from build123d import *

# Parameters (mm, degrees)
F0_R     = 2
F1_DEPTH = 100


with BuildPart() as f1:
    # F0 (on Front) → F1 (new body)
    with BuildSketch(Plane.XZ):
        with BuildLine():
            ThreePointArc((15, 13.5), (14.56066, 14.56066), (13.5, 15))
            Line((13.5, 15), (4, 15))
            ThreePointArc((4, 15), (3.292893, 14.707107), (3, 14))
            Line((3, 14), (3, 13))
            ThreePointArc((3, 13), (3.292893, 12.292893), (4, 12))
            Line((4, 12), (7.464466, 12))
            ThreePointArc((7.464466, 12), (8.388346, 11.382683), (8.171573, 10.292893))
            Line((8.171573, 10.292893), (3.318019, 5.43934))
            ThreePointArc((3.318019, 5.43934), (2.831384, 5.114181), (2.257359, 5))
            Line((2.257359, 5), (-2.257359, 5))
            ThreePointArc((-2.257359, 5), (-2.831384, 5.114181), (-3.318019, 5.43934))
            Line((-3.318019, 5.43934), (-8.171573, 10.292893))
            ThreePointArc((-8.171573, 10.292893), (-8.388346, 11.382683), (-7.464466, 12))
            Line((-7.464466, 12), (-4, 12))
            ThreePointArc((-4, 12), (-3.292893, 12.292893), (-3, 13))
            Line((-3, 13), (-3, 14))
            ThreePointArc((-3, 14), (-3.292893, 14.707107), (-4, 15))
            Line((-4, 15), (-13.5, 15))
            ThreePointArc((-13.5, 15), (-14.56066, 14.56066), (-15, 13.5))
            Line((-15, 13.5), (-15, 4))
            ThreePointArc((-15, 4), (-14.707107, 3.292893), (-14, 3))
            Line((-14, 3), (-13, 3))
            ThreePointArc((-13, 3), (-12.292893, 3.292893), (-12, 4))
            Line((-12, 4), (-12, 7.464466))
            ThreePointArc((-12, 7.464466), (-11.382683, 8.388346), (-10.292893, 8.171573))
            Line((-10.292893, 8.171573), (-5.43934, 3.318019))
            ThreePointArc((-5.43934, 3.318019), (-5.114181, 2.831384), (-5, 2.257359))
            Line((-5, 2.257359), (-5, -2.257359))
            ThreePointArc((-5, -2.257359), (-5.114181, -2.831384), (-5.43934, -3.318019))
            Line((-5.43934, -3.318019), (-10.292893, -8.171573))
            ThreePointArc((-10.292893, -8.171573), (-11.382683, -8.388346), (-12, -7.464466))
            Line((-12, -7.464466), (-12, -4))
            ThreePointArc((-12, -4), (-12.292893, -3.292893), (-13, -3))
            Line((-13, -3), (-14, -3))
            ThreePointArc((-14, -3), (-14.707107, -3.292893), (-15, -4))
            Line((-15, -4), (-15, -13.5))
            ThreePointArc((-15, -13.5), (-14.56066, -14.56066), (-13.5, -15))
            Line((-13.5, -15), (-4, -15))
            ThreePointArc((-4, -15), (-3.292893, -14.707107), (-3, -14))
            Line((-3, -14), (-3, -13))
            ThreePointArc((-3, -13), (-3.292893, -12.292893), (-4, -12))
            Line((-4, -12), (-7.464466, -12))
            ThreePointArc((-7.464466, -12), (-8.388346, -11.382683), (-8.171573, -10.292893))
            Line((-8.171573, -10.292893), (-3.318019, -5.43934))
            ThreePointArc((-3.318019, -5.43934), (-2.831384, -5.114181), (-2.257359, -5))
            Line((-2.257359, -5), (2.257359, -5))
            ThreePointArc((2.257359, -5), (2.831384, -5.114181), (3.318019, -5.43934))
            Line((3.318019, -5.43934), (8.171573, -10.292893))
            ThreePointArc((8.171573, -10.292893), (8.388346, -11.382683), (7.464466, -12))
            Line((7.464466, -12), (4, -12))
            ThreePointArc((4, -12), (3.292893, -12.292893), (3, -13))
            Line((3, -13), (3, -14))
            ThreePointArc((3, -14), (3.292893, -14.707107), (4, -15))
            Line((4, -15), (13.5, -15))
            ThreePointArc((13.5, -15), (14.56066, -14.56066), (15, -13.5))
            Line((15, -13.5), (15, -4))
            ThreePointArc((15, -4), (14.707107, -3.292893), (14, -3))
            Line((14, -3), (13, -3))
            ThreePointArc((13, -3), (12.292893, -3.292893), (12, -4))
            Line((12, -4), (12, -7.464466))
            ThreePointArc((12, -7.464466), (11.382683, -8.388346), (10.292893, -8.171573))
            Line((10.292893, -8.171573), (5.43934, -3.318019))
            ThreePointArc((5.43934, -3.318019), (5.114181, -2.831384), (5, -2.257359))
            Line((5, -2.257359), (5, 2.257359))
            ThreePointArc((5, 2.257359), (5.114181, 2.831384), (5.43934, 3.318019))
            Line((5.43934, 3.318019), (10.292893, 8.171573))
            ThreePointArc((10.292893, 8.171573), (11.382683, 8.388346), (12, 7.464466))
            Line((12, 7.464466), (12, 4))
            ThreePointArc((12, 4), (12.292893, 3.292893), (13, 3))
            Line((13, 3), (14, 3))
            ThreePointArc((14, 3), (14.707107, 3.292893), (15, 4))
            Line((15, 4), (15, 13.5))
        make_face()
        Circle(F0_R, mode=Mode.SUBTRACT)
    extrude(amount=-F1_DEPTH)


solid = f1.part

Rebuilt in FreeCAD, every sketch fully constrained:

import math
import FreeCAD as App
import Part
import Sketcher
from FreeCAD import Vector

doc = App.newDocument("Part")
body = doc.addObject("PartDesign::Body", "Body")

sketch1 = body.newObject("Sketcher::SketchObject", "Sketch")
sketch1.AttachmentSupport = (doc.getObject("XZ_Plane"), [""])
sketch1.MapMode = "FlatFace"
sketch1.addGeometry(Part.ArcOfCircle(Part.Circle(Vector(13.5, 13.5, 0), Vector(0, 0, 1), 1.5), math.radians(0), math.radians(90)), False)
sketch1.addGeometry(Part.LineSegment(Vector(13.5, 15, 0), Vector(4, 15, 0)), False)
sketch1.addGeometry(Part.ArcOfCircle(Part.Circle(Vector(4, 14, 0), Vector(0, 0, 1), 1), math.radians(90), math.radians(180)), False)
sketch1.addGeometry(Part.LineSegment(Vector(3, 14, 0), Vector(3, 13, 0)), False)
sketch1.addGeometry(Part.ArcOfCircle(Part.Circle(Vector(4, 13, 0), Vector(0, 0, 1), 1), math.radians(180), math.radians(270)), False)
sketch1.addGeometry(Part.LineSegment(Vector(4, 12, 0), Vector(7.5, 12, 0)), False)
sketch1.addGeometry(Part.ArcOfCircle(Part.Circle(Vector(7.5, 11, 0), Vector(0, 0, 1), 1), math.radians(-45), math.radians(90)), False)
sketch1.addGeometry(Part.LineSegment(Vector(8.2, 10.3, 0), Vector(3.3, 5.4, 0)), False)
sketch1.addGeometry(Part.ArcOfCircle(Part.Circle(Vector(2.3, 6.5, 0), Vector(0, 0, 1), 1.5), math.radians(-90), math.radians(-45)), False)
sketch1.addGeometry(Part.LineSegment(Vector(2.3, 5, 0), Vector(-2.3, 5, 0)), False)
sketch1.addGeometry(Part.ArcOfCircle(Part.Circle(Vector(-2.3, 6.5, 0), Vector(0, 0, 1), 1.5), math.radians(-135), math.radians(-90)), False)
sketch1.addGeometry(Part.LineSegment(Vector(-3.3, 5.4, 0), Vector(-8.2, 10.3, 0)), False)
sketch1.addGeometry(Part.ArcOfCircle(Part.Circle(Vector(-7.5, 11, 0), Vector(0, 0, 1), 1), math.radians(90), math.radians(225)), False)
sketch1.addGeometry(Part.LineSegment(Vector(-7.5, 12, 0), Vector(-4, 12, 0)), False)
sketch1.addGeometry(Part.ArcOfCircle(Part.Circle(Vector(-4, 13, 0), Vector(0, 0, 1), 1), math.radians(-90), math.radians(0)), False)
sketch1.addGeometry(Part.LineSegment(Vector(-3, 13, 0), Vector(-3, 14, 0)), False)
sketch1.addGeometry(Part.ArcOfCircle(Part.Circle(Vector(-4, 14, 0), Vector(0, 0, 1), 1), math.radians(0), math.radians(90)), False)
sketch1.addGeometry(Part.LineSegment(Vector(-4, 15, 0), Vector(-13.5, 15, 0)), False)
sketch1.addGeometry(Part.ArcOfCircle(Part.Circle(Vector(-13.5, 13.5, 0), Vector(0, 0, 1), 1.5), math.radians(90), math.radians(180)), False)
sketch1.addGeometry(Part.LineSegment(Vector(-15, 13.5, 0), Vector(-15, 4, 0)), False)
sketch1.addGeometry(Part.ArcOfCircle(Part.Circle(Vector(-14, 4, 0), Vector(0, 0, 1), 1), math.radians(180), math.radians(270)), False)
sketch1.addGeometry(Part.LineSegment(Vector(-14, 3, 0), Vector(-13, 3, 0)), False)
sketch1.addGeometry(Part.ArcOfCircle(Part.Circle(Vector(-13, 4, 0), Vector(0, 0, 1), 1), math.radians(-90), math.radians(0)), False)
sketch1.addGeometry(Part.LineSegment(Vector(-12, 4, 0), Vector(-12, 7.5, 0)), False)
sketch1.addGeometry(Part.ArcOfCircle(Part.Circle(Vector(-11, 7.5, 0), Vector(0, 0, 1), 1), math.radians(45), math.radians(180)), False)
sketch1.addGeometry(Part.LineSegment(Vector(-10.3, 8.2, 0), Vector(-5.4, 3.3, 0)), False)
sketch1.addGeometry(Part.ArcOfCircle(Part.Circle(Vector(-6.5, 2.3, 0), Vector(0, 0, 1), 1.5), math.radians(0), math.radians(45)), False)
sketch1.addGeometry(Part.LineSegment(Vector(-5, 2.3, 0), Vector(-5, -2.3, 0)), False)
sketch1.addGeometry(Part.ArcOfCircle(Part.Circle(Vector(-6.5, -2.3, 0), Vector(0, 0, 1), 1.5), math.radians(-45), math.radians(0)), False)
sketch1.addGeometry(Part.LineSegment(Vector(-5.4, -3.3, 0), Vector(-10.3, -8.2, 0)), False)
sketch1.addGeometry(Part.ArcOfCircle(Part.Circle(Vector(-11, -7.5, 0), Vector(0, 0, 1), 1), math.radians(180), math.radians(315)), False)
sketch1.addGeometry(Part.LineSegment(Vector(-12, -7.5, 0), Vector(-12, -4, 0)), False)
sketch1.addGeometry(Part.ArcOfCircle(Part.Circle(Vector(-13, -4, 0), Vector(0, 0, 1), 1), math.radians(0), math.radians(90)), False)
sketch1.addGeometry(Part.LineSegment(Vector(-13, -3, 0), Vector(-14, -3, 0)), False)
sketch1.addGeometry(Part.ArcOfCircle(Part.Circle(Vector(-14, -4, 0), Vector(0, 0, 1), 1), math.radians(90), math.radians(180)), False)
sketch1.addGeometry(Part.LineSegment(Vector(-15, -4, 0), Vector(-15, -13.5, 0)), False)
sketch1.addGeometry(Part.ArcOfCircle(Part.Circle(Vector(-13.5, -13.5, 0), Vector(0, 0, 1), 1.5), math.radians(-180), math.radians(-90)), False)
sketch1.addGeometry(Part.LineSegment(Vector(-13.5, -15, 0), Vector(-4, -15, 0)), False)
sketch1.addGeometry(Part.ArcOfCircle(Part.Circle(Vector(-4, -14, 0), Vector(0, 0, 1), 1), math.radians(-90), math.radians(0)), False)
sketch1.addGeometry(Part.LineSegment(Vector(-3, -14, 0), Vector(-3, -13, 0)), False)
sketch1.addGeometry(Part.ArcOfCircle(Part.Circle(Vector(-4, -13, 0), Vector(0, 0, 1), 1), math.radians(0), math.radians(90)), False)
sketch1.addGeometry(Part.LineSegment(Vector(-4, -12, 0), Vector(-7.5, -12, 0)), False)
sketch1.addGeometry(Part.ArcOfCircle(Part.Circle(Vector(-7.5, -11, 0), Vector(0, 0, 1), 1), math.radians(135), math.radians(270)), False)
sketch1.addGeometry(Part.LineSegment(Vector(-8.2, -10.3, 0), Vector(-3.3, -5.4, 0)), False)
sketch1.addGeometry(Part.ArcOfCircle(Part.Circle(Vector(-2.3, -6.5, 0), Vector(0, 0, 1), 1.5), math.radians(90), math.radians(135)), False)
sketch1.addGeometry(Part.LineSegment(Vector(-2.3, -5, 0), Vector(2.3, -5, 0)), False)
sketch1.addGeometry(Part.ArcOfCircle(Part.Circle(Vector(2.3, -6.5, 0), Vector(0, 0, 1), 1.5), math.radians(45), math.radians(90)), False)
sketch1.addGeometry(Part.LineSegment(Vector(3.3, -5.4, 0), Vector(8.2, -10.3, 0)), False)
sketch1.addGeometry(Part.ArcOfCircle(Part.Circle(Vector(7.5, -11, 0), Vector(0, 0, 1), 1), math.radians(-90), math.radians(45)), False)
sketch1.addGeometry(Part.LineSegment(Vector(7.5, -12, 0), Vector(4, -12, 0)), False)
sketch1.addGeometry(Part.ArcOfCircle(Part.Circle(Vector(4, -13, 0), Vector(0, 0, 1), 1), math.radians(90), math.radians(180)), False)
sketch1.addGeometry(Part.LineSegment(Vector(3, -13, 0), Vector(3, -14, 0)), False)
sketch1.addGeometry(Part.ArcOfCircle(Part.Circle(Vector(4, -14, 0), Vector(0, 0, 1), 1), math.radians(180), math.radians(270)), False)
sketch1.addGeometry(Part.LineSegment(Vector(4, -15, 0), Vector(13.5, -15, 0)), False)
sketch1.addGeometry(Part.ArcOfCircle(Part.Circle(Vector(13.5, -13.5, 0), Vector(0, 0, 1), 1.5), math.radians(-90), math.radians(0)), False)
sketch1.addGeometry(Part.LineSegment(Vector(15, -13.5, 0), Vector(15, -4, 0)), False)
sketch1.addGeometry(Part.ArcOfCircle(Part.Circle(Vector(14, -4, 0), Vector(0, 0, 1), 1), math.radians(0), math.radians(90)), False)
sketch1.addGeometry(Part.LineSegment(Vector(14, -3, 0), Vector(13, -3, 0)), False)
sketch1.addGeometry(Part.ArcOfCircle(Part.Circle(Vector(13, -4, 0), Vector(0, 0, 1), 1), math.radians(90), math.radians(180)), False)
sketch1.addGeometry(Part.LineSegment(Vector(12, -4, 0), Vector(12, -7.5, 0)), False)
sketch1.addGeometry(Part.ArcOfCircle(Part.Circle(Vector(11, -7.5, 0), Vector(0, 0, 1), 1), math.radians(-135), math.radians(0)), False)
sketch1.addGeometry(Part.LineSegment(Vector(10.3, -8.2, 0), Vector(5.4, -3.3, 0)), False)
sketch1.addGeometry(Part.ArcOfCircle(Part.Circle(Vector(6.5, -2.3, 0), Vector(0, 0, 1), 1.5), math.radians(-180), math.radians(-135)), False)
sketch1.addGeometry(Part.LineSegment(Vector(5, -2.3, 0), Vector(5, 2.3, 0)), False)
sketch1.addGeometry(Part.ArcOfCircle(Part.Circle(Vector(6.5, 2.3, 0), Vector(0, 0, 1), 1.5), math.radians(135), math.radians(180)), False)
sketch1.addGeometry(Part.LineSegment(Vector(5.4, 3.3, 0), Vector(10.3, 8.2, 0)), False)
sketch1.addGeometry(Part.ArcOfCircle(Part.Circle(Vector(11, 7.5, 0), Vector(0, 0, 1), 1), math.radians(0), math.radians(135)), False)
sketch1.addGeometry(Part.LineSegment(Vector(12, 7.5, 0), Vector(12, 4, 0)), False)
sketch1.addGeometry(Part.ArcOfCircle(Part.Circle(Vector(13, 4, 0), Vector(0, 0, 1), 1), math.radians(180), math.radians(270)), False)
sketch1.addGeometry(Part.LineSegment(Vector(13, 3, 0), Vector(14, 3, 0)), False)
sketch1.addGeometry(Part.ArcOfCircle(Part.Circle(Vector(14, 4, 0), Vector(0, 0, 1), 1), math.radians(-90), math.radians(0)), False)
sketch1.addGeometry(Part.LineSegment(Vector(15, 4, 0), Vector(15, 13.5, 0)), False)
sketch1.addGeometry(Part.Circle(Vector(0, 0, 0), Vector(0, 0, 1), 2), False)
sketch1.addConstraint(Sketcher.Constraint("Tangent", 0, 2, 1, 1))
sketch1.addConstraint(Sketcher.Constraint("Tangent", 1, 2, 2, 1))
sketch1.addConstraint(Sketcher.Constraint("Tangent", 2, 2, 3, 1))
sketch1.addConstraint(Sketcher.Constraint("Tangent", 3, 2, 4, 1))
sketch1.addConstraint(Sketcher.Constraint("Tangent", 4, 2, 5, 1))
sketch1.addConstraint(Sketcher.Constraint("Tangent", 5, 2, 6, 2))
sketch1.addConstraint(Sketcher.Constraint("Tangent", 6, 1, 7, 1))
sketch1.addConstraint(Sketcher.Constraint("Tangent", 7, 2, 8, 2))
sketch1.addConstraint(Sketcher.Constraint("Tangent", 8, 1, 9, 1))
sketch1.addConstraint(Sketcher.Constraint("Tangent", 9, 2, 10, 2))
sketch1.addConstraint(Sketcher.Constraint("Tangent", 10, 1, 11, 1))
sketch1.addConstraint(Sketcher.Constraint("Tangent", 11, 2, 12, 2))
sketch1.addConstraint(Sketcher.Constraint("Tangent", 12, 1, 13, 1))
sketch1.addConstraint(Sketcher.Constraint("Tangent", 13, 2, 14, 1))
sketch1.addConstraint(Sketcher.Constraint("Tangent", 14, 2, 15, 1))
sketch1.addConstraint(Sketcher.Constraint("Tangent", 15, 2, 16, 1))
sketch1.addConstraint(Sketcher.Constraint("Tangent", 16, 2, 17, 1))
sketch1.addConstraint(Sketcher.Constraint("Tangent", 17, 2, 18, 1))
sketch1.addConstraint(Sketcher.Constraint("Tangent", 18, 2, 19, 1))
sketch1.addConstraint(Sketcher.Constraint("Tangent", 19, 2, 20, 1))
sketch1.addConstraint(Sketcher.Constraint("Tangent", 20, 2, 21, 1))
sketch1.addConstraint(Sketcher.Constraint("Tangent", 21, 2, 22, 1))
sketch1.addConstraint(Sketcher.Constraint("Tangent", 22, 2, 23, 1))
sketch1.addConstraint(Sketcher.Constraint("Tangent", 23, 2, 24, 2))
sketch1.addConstraint(Sketcher.Constraint("Tangent", 24, 1, 25, 1))
sketch1.addConstraint(Sketcher.Constraint("Tangent", 25, 2, 26, 2))
sketch1.addConstraint(Sketcher.Constraint("Tangent", 26, 1, 27, 1))
sketch1.addConstraint(Sketcher.Constraint("Tangent", 27, 2, 28, 2))
sketch1.addConstraint(Sketcher.Constraint("Tangent", 28, 1, 29, 1))
sketch1.addConstraint(Sketcher.Constraint("Tangent", 29, 2, 30, 2))
sketch1.addConstraint(Sketcher.Constraint("Tangent", 30, 1, 31, 1))
sketch1.addConstraint(Sketcher.Constraint("Tangent", 31, 2, 32, 1))
sketch1.addConstraint(Sketcher.Constraint("Tangent", 32, 2, 33, 1))
sketch1.addConstraint(Sketcher.Constraint("Tangent", 33, 2, 34, 1))
sketch1.addConstraint(Sketcher.Constraint("Tangent", 34, 2, 35, 1))
sketch1.addConstraint(Sketcher.Constraint("Tangent", 35, 2, 36, 1))
sketch1.addConstraint(Sketcher.Constraint("Tangent", 36, 2, 37, 1))
sketch1.addConstraint(Sketcher.Constraint("Tangent", 37, 2, 38, 1))
sketch1.addConstraint(Sketcher.Constraint("Tangent", 38, 2, 39, 1))
sketch1.addConstraint(Sketcher.Constraint("Tangent", 39, 2, 40, 1))
sketch1.addConstraint(Sketcher.Constraint("Tangent", 40, 2, 41, 1))
sketch1.addConstraint(Sketcher.Constraint("Tangent", 41, 2, 42, 2))
sketch1.addConstraint(Sketcher.Constraint("Tangent", 42, 1, 43, 1))
sketch1.addConstraint(Sketcher.Constraint("Tangent", 43, 2, 44, 2))
sketch1.addConstraint(Sketcher.Constraint("Tangent", 44, 1, 45, 1))
sketch1.addConstraint(Sketcher.Constraint("Tangent", 45, 2, 46, 2))
sketch1.addConstraint(Sketcher.Constraint("Tangent", 46, 1, 47, 1))
sketch1.addConstraint(Sketcher.Constraint("Tangent", 47, 2, 48, 2))
sketch1.addConstraint(Sketcher.Constraint("Tangent", 48, 1, 49, 1))
sketch1.addConstraint(Sketcher.Constraint("Tangent", 49, 2, 50, 1))
sketch1.addConstraint(Sketcher.Constraint("Tangent", 50, 2, 51, 1))
sketch1.addConstraint(Sketcher.Constraint("Tangent", 51, 2, 52, 1))
sketch1.addConstraint(Sketcher.Constraint("Tangent", 52, 2, 53, 1))
sketch1.addConstraint(Sketcher.Constraint("Tangent", 53, 2, 54, 1))
sketch1.addConstraint(Sketcher.Constraint("Tangent", 54, 2, 55, 1))
sketch1.addConstraint(Sketcher.Constraint("Tangent", 55, 2, 56, 1))
sketch1.addConstraint(Sketcher.Constraint("Tangent", 56, 2, 57, 1))
sketch1.addConstraint(Sketcher.Constraint("Tangent", 57, 2, 58, 1))
sketch1.addConstraint(Sketcher.Constraint("Tangent", 58, 2, 59, 1))
sketch1.addConstraint(Sketcher.Constraint("Tangent", 59, 2, 60, 2))
sketch1.addConstraint(Sketcher.Constraint("Tangent", 60, 1, 61, 1))
sketch1.addConstraint(Sketcher.Constraint("Tangent", 61, 2, 62, 2))
sketch1.addConstraint(Sketcher.Constraint("Tangent", 62, 1, 63, 1))
sketch1.addConstraint(Sketcher.Constraint("Tangent", 63, 2, 64, 2))
sketch1.addConstraint(Sketcher.Constraint("Tangent", 64, 1, 65, 1))
sketch1.addConstraint(Sketcher.Constraint("Tangent", 65, 2, 66, 2))
sketch1.addConstraint(Sketcher.Constraint("Tangent", 66, 1, 67, 1))
sketch1.addConstraint(Sketcher.Constraint("Tangent", 67, 2, 68, 1))
sketch1.addConstraint(Sketcher.Constraint("Tangent", 68, 2, 69, 1))
sketch1.addConstraint(Sketcher.Constraint("Tangent", 69, 2, 70, 1))
sketch1.addConstraint(Sketcher.Constraint("Tangent", 70, 2, 71, 1))
sketch1.addConstraint(Sketcher.Constraint("Tangent", 71, 2, 0, 1))
sketch1.addConstraint(Sketcher.Constraint("Horizontal", 1))
sketch1.addConstraint(Sketcher.Constraint("Vertical", 3))
sketch1.addConstraint(Sketcher.Constraint("Horizontal", 5))
sketch1.addConstraint(Sketcher.Constraint("Horizontal", 9))
sketch1.addConstraint(Sketcher.Constraint("Horizontal", 13))
sketch1.addConstraint(Sketcher.Constraint("Vertical", 15))
sketch1.addConstraint(Sketcher.Constraint("Horizontal", 17))
sketch1.addConstraint(Sketcher.Constraint("Vertical", 19))
sketch1.addConstraint(Sketcher.Constraint("Horizontal", 21))
sketch1.addConstraint(Sketcher.Constraint("Vertical", 23))
sketch1.addConstraint(Sketcher.Constraint("Vertical", 27))
sketch1.addConstraint(Sketcher.Constraint("Vertical", 31))
sketch1.addConstraint(Sketcher.Constraint("Horizontal", 33))
sketch1.addConstraint(Sketcher.Constraint("Vertical", 35))
sketch1.addConstraint(Sketcher.Constraint("Horizontal", 37))
sketch1.addConstraint(Sketcher.Constraint("Vertical", 39))
sketch1.addConstraint(Sketcher.Constraint("Horizontal", 41))
sketch1.addConstraint(Sketcher.Constraint("Horizontal", 45))
sketch1.addConstraint(Sketcher.Constraint("Horizontal", 49))
sketch1.addConstraint(Sketcher.Constraint("Vertical", 51))
sketch1.addConstraint(Sketcher.Constraint("Horizontal", 53))
sketch1.addConstraint(Sketcher.Constraint("Vertical", 55))
sketch1.addConstraint(Sketcher.Constraint("Horizontal", 57))
sketch1.addConstraint(Sketcher.Constraint("Vertical", 59))
sketch1.addConstraint(Sketcher.Constraint("Vertical", 63))
sketch1.addConstraint(Sketcher.Constraint("Vertical", 67))
sketch1.addConstraint(Sketcher.Constraint("Horizontal", 69))
sketch1.addConstraint(Sketcher.Constraint("Vertical", 71))
sketch1.addConstraint(Sketcher.Constraint("Coincident", 72, 3, -1, 1))
sketch1.addConstraint(Sketcher.Constraint("Equal", 2, 4))
sketch1.addConstraint(Sketcher.Constraint("Equal", 4, 6))
sketch1.addConstraint(Sketcher.Constraint("Equal", 0, 8))
sketch1.addConstraint(Sketcher.Constraint("Equal", 8, 10))
sketch1.addConstraint(Sketcher.Constraint("Equal", 6, 12))
sketch1.addConstraint(Sketcher.Constraint("Equal", 12, 14))
sketch1.addConstraint(Sketcher.Constraint("Equal", 14, 16))
sketch1.addConstraint(Sketcher.Constraint("Equal", 10, 18))
sketch1.addConstraint(Sketcher.Constraint("Equal", 16, 20))
sketch1.addConstraint(Sketcher.Constraint("Equal", 20, 22))
sketch1.addConstraint(Sketcher.Constraint("Equal", 22, 24))
sketch1.addConstraint(Sketcher.Constraint("Equal", 18, 26))
sketch1.addConstraint(Sketcher.Constraint("Equal", 26, 28))
sketch1.addConstraint(Sketcher.Constraint("Equal", 24, 30))
sketch1.addConstraint(Sketcher.Constraint("Equal", 30, 32))
sketch1.addConstraint(Sketcher.Constraint("Equal", 32, 34))
sketch1.addConstraint(Sketcher.Constraint("Equal", 28, 36))
sketch1.addConstraint(Sketcher.Constraint("Equal", 34, 38))
sketch1.addConstraint(Sketcher.Constraint("Equal", 38, 40))
sketch1.addConstraint(Sketcher.Constraint("Equal", 40, 42))
sketch1.addConstraint(Sketcher.Constraint("Equal", 36, 44))
sketch1.addConstraint(Sketcher.Constraint("Equal", 44, 46))
sketch1.addConstraint(Sketcher.Constraint("Equal", 42, 48))
sketch1.addConstraint(Sketcher.Constraint("Equal", 48, 50))
sketch1.addConstraint(Sketcher.Constraint("Equal", 50, 52))
sketch1.addConstraint(Sketcher.Constraint("Equal", 46, 54))
sketch1.addConstraint(Sketcher.Constraint("Equal", 52, 56))
sketch1.addConstraint(Sketcher.Constraint("Equal", 56, 58))
sketch1.addConstraint(Sketcher.Constraint("Equal", 58, 60))
sketch1.addConstraint(Sketcher.Constraint("Equal", 54, 62))
sketch1.addConstraint(Sketcher.Constraint("Equal", 62, 64))
sketch1.addConstraint(Sketcher.Constraint("Equal", 60, 66))
sketch1.addConstraint(Sketcher.Constraint("Equal", 66, 68))
sketch1.addConstraint(Sketcher.Constraint("Equal", 68, 70))
sketch1.addConstraint(Sketcher.Constraint("Symmetric", 0, 3, 36, 3, -1, 1))
sketch1.addConstraint(Sketcher.Constraint("Symmetric", 4, 3, 40, 3, -1, 1))
sketch1.addConstraint(Sketcher.Constraint("Symmetric", 8, 3, 44, 3, -1, 1))
sketch1.addConstraint(Sketcher.Constraint("Symmetric", 12, 3, 48, 3, -1, 1))
sketch1.addConstraint(Sketcher.Constraint("Symmetric", 16, 3, 52, 3, -1, 1))
sketch1.addConstraint(Sketcher.Constraint("Symmetric", 20, 3, 56, 3, -1, 1))
sketch1.addConstraint(Sketcher.Constraint("Symmetric", 24, 3, 60, 3, -1, 1))
sketch1.addConstraint(Sketcher.Constraint("Symmetric", 26, 3, 62, 3, -1, 1))
sketch1.addConstraint(Sketcher.Constraint("Symmetric", 30, 3, 66, 3, -1, 1))
sketch1.addConstraint(Sketcher.Constraint("Symmetric", 6, 3, 12, 3, -2))
sketch1.addConstraint(Sketcher.Constraint("Symmetric", 2, 3, 16, 3, -2))
sketch1.addConstraint(Sketcher.Constraint("Symmetric", 34, 3, 56, 3, -2))
sketch1.addConstraint(Sketcher.Constraint("Symmetric", 30, 3, 60, 3, -2))
sketch1.addConstraint(Sketcher.Constraint("Symmetric", 43, 2, 46, 1, -2))
sketch1.addConstraint(Sketcher.Constraint("Perpendicular", 7, 11))
sketch1.addConstraint(Sketcher.Constraint("Parallel", 11, 25))
sketch1.addConstraint(Sketcher.Constraint("Perpendicular", 25, 29))
sketch1.addConstraint(Sketcher.Constraint("Perpendicular", 43, 47))
sketch1.addConstraint(Sketcher.Constraint("Perpendicular", 61, 65))
sketch1.addConstraint(Sketcher.Constraint("Horizontal", 22, 3, 68, 3))
sketch1.addConstraint(Sketcher.Constraint("Equal", 69, 3))
sketch1.addConstraint(Sketcher.Constraint("Equal", 53, 19))
sketch1.addConstraint(Sketcher.Constraint("Equal", 49, 23))
sketch1.addConstraint(Sketcher.Constraint("Equal", 45, 27))
sketch1.addConstraint(Sketcher.Constraint("Equal", 11, 25))
sketch1.addConstraint(Sketcher.Constraint("Diameter", 72, 4.0))
sketch1.addConstraint(Sketcher.Constraint("Radius", 2, 0.999999))
sketch1.addConstraint(Sketcher.Constraint("Radius", 0, 1.500001))
sketch1.addConstraint(Sketcher.Constraint("DistanceX", 21, 1, 21, 2, 1.0))
sketch1.addConstraint(Sketcher.Constraint("DistanceX", 1, 2, 1, 1, 9.5))
sketch1.addConstraint(Sketcher.Constraint("DistanceX", -1, 1, 2, 3, 3.999999))
sketch1.addConstraint(Sketcher.Constraint("DistanceY", -1, 1, 8, 1, 5.0))
sketch1.addConstraint(Sketcher.Constraint("DistanceX", 9, 2, 9, 1, 4.514718))
pad1 = body.newObject("PartDesign::Pad", "Pad")
pad1.Profile = sketch1
pad1.Length = 100
pad1.Reversed = True

doc.recompute()
